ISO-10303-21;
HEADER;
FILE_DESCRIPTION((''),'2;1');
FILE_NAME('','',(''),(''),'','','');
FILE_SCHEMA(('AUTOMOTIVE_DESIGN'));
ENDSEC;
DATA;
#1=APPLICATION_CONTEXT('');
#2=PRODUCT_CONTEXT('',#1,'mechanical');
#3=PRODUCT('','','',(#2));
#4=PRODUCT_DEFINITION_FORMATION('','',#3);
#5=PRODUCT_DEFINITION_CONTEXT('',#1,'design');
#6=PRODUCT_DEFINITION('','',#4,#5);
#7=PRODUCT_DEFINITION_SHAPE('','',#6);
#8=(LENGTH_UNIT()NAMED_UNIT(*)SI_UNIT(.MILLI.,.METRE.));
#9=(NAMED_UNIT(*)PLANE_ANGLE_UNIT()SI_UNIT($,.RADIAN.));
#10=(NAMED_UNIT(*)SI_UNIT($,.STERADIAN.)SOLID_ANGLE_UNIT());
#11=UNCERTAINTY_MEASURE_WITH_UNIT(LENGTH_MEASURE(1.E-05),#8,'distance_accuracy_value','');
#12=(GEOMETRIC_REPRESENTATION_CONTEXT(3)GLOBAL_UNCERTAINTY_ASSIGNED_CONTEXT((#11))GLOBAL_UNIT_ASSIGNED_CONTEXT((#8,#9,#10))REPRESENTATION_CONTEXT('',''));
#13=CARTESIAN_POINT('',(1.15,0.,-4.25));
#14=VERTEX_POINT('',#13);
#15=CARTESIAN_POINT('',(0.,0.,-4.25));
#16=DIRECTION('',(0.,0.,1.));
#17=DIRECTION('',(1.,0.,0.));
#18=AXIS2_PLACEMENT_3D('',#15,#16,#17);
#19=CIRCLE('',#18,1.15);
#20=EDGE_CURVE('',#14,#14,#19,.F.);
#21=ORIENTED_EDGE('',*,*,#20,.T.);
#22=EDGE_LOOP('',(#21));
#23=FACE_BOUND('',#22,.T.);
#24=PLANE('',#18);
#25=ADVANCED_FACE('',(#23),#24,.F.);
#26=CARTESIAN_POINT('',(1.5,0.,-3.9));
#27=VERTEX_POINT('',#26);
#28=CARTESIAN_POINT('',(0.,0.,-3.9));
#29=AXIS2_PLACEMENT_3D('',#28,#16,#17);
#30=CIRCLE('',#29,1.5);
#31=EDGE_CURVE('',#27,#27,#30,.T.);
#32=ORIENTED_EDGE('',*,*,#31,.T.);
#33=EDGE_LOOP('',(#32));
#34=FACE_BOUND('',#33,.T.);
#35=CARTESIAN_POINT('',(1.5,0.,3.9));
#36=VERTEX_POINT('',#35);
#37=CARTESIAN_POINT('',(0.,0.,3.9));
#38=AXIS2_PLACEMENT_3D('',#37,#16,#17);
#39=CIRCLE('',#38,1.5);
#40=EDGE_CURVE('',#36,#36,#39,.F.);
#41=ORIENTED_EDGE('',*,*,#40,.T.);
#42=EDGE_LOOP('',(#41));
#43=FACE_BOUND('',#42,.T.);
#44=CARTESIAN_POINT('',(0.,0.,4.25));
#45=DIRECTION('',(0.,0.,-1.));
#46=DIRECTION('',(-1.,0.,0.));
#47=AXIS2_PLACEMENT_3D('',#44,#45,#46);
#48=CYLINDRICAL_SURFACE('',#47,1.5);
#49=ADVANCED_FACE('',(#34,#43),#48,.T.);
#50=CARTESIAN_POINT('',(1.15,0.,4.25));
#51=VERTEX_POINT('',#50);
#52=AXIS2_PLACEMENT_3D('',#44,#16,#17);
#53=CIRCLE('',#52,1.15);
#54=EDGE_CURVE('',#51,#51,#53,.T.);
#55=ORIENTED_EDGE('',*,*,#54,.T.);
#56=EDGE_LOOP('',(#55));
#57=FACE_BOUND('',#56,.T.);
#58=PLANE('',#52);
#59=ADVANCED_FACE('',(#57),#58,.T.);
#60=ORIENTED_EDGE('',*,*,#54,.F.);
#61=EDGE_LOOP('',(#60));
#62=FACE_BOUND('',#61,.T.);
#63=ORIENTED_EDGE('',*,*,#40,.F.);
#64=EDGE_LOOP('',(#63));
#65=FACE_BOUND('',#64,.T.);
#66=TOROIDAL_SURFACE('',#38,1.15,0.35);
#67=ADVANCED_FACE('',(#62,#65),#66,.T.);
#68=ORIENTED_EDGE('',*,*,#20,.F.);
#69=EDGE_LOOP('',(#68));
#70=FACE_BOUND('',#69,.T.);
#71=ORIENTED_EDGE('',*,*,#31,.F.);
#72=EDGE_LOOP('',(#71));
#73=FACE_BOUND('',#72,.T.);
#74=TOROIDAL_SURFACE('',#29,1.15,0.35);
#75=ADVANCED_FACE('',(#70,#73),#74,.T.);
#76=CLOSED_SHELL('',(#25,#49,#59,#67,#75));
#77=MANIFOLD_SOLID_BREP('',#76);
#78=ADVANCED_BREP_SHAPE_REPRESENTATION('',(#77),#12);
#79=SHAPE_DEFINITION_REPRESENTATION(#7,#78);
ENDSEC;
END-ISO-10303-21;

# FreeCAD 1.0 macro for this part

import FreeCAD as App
import Part
import Sketcher
Q = App.Units.Quantity


def edges_at(feature, points):
    """Names of the edges that pass closest to the given points."""
    edges = feature.Shape.Edges
    near = lambda p: min(range(len(edges)), key=lambda i: edges[i].distToShape(Part.Vertex(*p))[0])
    return sorted({f"Edge{near(p) + 1}" for p in points})

doc = App.newDocument("Part")
body = doc.addObject("PartDesign::Body", "Body")

# Sketch on XY plane
sketch1 = body.newObject("Sketcher::SketchObject", "Sketch")
sketch1.AttachmentSupport = (doc.getObject("XY_Plane"), [""])
sketch1.MapMode = "FlatFace"
sketch1.addGeometry(Part.Circle(App.Vector(0, 0, 0), App.Vector(0, 0, 1), 1.5), False)
sketch1.addConstraint([
    Sketcher.Constraint("Coincident", 0, 3, -1, 1),
    Sketcher.Constraint("Diameter", 0, Q("3 mm")),
])
pad1 = body.newObject("PartDesign::Pad", "Pad")
pad1.Profile = sketch1
pad1.Length = 8.5
pad1.Midplane = True
doc.recompute()

fillet = body.newObject("PartDesign::Fillet", "Fillet")
fillet.Base = (pad1, edges_at(pad1, [(-1.5, 0, -4.25), (-1.5, 0, 4.25)]))
fillet.Radius = 0.35

doc.recompute()
